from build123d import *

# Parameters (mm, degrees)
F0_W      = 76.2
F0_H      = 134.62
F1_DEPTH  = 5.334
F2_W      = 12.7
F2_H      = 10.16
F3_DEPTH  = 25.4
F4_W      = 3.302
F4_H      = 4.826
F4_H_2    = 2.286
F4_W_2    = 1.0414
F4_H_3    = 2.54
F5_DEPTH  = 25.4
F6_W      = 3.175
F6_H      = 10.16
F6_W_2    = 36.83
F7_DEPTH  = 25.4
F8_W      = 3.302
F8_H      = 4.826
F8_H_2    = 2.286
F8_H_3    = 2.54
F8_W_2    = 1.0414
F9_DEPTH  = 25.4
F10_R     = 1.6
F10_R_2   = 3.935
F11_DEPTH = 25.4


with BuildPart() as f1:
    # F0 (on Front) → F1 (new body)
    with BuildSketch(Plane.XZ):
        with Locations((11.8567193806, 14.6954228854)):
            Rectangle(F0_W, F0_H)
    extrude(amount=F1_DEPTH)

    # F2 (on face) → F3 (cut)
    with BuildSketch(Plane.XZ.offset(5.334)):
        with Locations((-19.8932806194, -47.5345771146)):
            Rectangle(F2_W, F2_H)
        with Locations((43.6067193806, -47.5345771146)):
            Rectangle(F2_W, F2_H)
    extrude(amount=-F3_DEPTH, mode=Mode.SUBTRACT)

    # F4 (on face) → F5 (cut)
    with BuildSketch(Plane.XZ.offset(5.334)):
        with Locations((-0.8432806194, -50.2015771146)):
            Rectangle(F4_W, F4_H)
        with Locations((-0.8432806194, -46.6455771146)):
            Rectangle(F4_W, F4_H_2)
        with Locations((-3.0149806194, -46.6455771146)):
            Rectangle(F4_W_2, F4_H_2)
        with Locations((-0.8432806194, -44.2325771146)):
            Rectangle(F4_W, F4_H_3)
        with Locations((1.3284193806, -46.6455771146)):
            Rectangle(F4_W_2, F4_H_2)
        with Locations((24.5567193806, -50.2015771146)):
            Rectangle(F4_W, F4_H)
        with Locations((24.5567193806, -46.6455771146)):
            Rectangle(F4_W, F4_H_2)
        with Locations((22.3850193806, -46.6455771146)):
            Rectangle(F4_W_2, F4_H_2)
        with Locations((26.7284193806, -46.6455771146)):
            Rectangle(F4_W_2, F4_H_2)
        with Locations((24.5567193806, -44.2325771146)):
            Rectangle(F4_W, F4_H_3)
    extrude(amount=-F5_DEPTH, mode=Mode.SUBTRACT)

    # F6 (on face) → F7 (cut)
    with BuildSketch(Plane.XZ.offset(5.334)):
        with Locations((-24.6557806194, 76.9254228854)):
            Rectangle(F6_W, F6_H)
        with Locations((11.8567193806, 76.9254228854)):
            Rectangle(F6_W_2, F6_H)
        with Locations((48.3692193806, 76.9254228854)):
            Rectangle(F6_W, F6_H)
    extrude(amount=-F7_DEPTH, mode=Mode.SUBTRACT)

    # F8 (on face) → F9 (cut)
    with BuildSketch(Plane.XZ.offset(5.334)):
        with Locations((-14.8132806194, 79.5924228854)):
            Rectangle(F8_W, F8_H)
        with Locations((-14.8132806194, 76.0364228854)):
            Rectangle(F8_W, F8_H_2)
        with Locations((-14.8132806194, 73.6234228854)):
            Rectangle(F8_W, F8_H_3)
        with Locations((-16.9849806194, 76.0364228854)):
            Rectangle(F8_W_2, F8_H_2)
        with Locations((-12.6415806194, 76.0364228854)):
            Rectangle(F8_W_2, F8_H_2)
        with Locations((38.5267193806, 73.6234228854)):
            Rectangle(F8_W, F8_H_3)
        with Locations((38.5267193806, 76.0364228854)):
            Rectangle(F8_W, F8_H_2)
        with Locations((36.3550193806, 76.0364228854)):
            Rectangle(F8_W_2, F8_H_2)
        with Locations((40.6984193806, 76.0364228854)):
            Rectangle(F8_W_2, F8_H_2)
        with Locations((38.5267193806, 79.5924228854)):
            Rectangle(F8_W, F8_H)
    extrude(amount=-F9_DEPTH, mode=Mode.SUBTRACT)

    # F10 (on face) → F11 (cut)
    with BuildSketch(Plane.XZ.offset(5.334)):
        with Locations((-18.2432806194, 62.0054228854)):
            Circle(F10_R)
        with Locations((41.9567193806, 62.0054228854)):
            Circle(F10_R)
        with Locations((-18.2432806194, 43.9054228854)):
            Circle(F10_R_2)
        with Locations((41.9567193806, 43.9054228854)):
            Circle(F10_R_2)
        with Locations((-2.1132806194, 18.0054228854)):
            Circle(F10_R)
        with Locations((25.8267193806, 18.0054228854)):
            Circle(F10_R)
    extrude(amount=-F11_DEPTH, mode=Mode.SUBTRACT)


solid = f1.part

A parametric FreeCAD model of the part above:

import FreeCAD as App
import Part
import Sketcher
from FreeCAD import Vector
Q = App.Units.Quantity


def add_polygon(sketch, points):
    """Adds a closed chain of lines whose ends are joined by coincident constraints."""
    first, n = sketch.GeometryCount, len(points)
    for a, b in zip(points, points[1:] + points[:1]):
        sketch.addGeometry(Part.LineSegment(App.Vector(*a, 0), App.Vector(*b, 0)), False)
    for i in range(n):
        sketch.addConstraint(Sketcher.Constraint("Coincident", first + i, 2, first + (i + 1) % n, 1))

doc = App.newDocument("Part")
params = doc.addObject("Spreadsheet::Sheet", "Params")
for row, (alias, value) in enumerate([
    ("sketch1_width", "3 in"),
    ("sketch1_height", "5.3 in"),
    ("pad1_length", "0.21 in"),
    ("sketch2_width", "0.5 in"),
    ("sketch2_height", "0.4 in"),
    ("pocket1_length", "1 in"),
    ("sketch3_height", "0.1 in"),
    ("sketch3_width", "0.13 in"),
    ("sketch3_height2", "0.19 in"),
    ("sketch3_height3", "0.09 in"),
    ("sketch3_width2", "0.041 in"),
    ("pocket2_length", "1 in"),
    ("sketch4_height", "0.4 in"),
    ("sketch4_width", "1.45 in"),
    ("sketch4_width2", "0.125 in"),
    ("pocket3_length", "1 in"),
    ("sketch5_height", "0.1 in"),
    ("sketch5_width", "0.13 in"),
    ("sketch5_height2", "0.19 in"),
    ("sketch5_height3", "0.09 in"),
    ("sketch5_width2", "0.041 in"),
    ("pocket4_length", "1 in"),
    ("pocket5_length", "1 in"),
], start=1):
    params.set(f"A{row}", alias)
    params.set(f"B{row}", "=" + value)
    params.setAlias(f"B{row}", alias)

body = doc.addObject("PartDesign::Body", "Body")

# Sketch on XZ plane
sketch1 = body.newObject("Sketcher::SketchObject", "Sketch")
sketch1.AttachmentSupport = (doc.getObject("XZ_Plane"), [""])
sketch1.MapMode = "FlatFace"
add_polygon(sketch1, [(-26, 82), (-26, -53), (50, -53), (50, 82)])  # lines 0-3
sketch1.addConstraint([
    Sketcher.Constraint("Vertical", 0),
    Sketcher.Constraint("Horizontal", 1),
    Sketcher.Constraint("Vertical", 2),
    Sketcher.Constraint("Horizontal", 3),
    Sketcher.Constraint("DistanceX", 1, 1, 1, 2, Q("3 in")),
    Sketcher.Constraint("DistanceY", 0, 2, 0, 1, Q("5.3 in")),
    Sketcher.Constraint("DistanceX", 0, 2, -1, 1, Q("1.0332 in")),
    Sketcher.Constraint("DistanceY", 0, 2, -1, 1, 52.614577),
])
sketch1.setExpression("Constraints[8]", "Params.sketch1_width")
sketch1.setExpression("Constraints[9]", "Params.sketch1_height")
pad1 = body.newObject("PartDesign::Pad", "Pad")
pad1.Profile = sketch1
pad1.setExpression("Length", "Params.pad1_length")

# Sketch on XZ plane
sketch2 = body.newObject("Sketcher::SketchObject", "Sketch001")
sketch2.AttachmentSupport = (doc.getObject("XZ_Plane"), [""])
sketch2.MapMode = "FlatFace"
sketch2.AttachmentOffset = App.Placement(Vector(0, 0, 0.21 * 25.4), App.Rotation())
add_polygon(sketch2, [(-26, -42), (-26, -53), (-14, -53), (-14, -42)])  # lines 0-3
add_polygon(sketch2, [(37, -42), (37, -53), (50, -53), (50, -42)])  # lines 4-7
sketch2.addConstraint([
    Sketcher.Constraint("Vertical", 0),
    Sketcher.Constraint("Horizontal", 1),
    Sketcher.Constraint("Vertical", 2),
    Sketcher.Constraint("Horizontal", 3),
    Sketcher.Constraint("Vertical", 4),
    Sketcher.Constraint("Horizontal", 5),
    Sketcher.Constraint("Vertical", 6),
    Sketcher.Constraint("Horizontal", 7),
    Sketcher.Constraint("Horizontal", 1, 2, 4, 2),
    Sketcher.Constraint("Horizontal", 3, 2, 6, 2),
    Sketcher.Constraint("Equal", 3, 5),
    Sketcher.Constraint("DistanceX", 1, 1, 1, 2, Q("0.5 in")),
    Sketcher.Constraint("DistanceY", 0, 2, 0, 1, Q("0.4 in")),
    Sketcher.Constraint("DistanceX", 1, 2, 4, 2, Q("2 in")),
    Sketcher.Constraint("DistanceX", 0, 2, -1, 1, Q("1.0332 in")),
    Sketcher.Constraint("DistanceY", 0, 2, -1, 1, 52.614577),
])
sketch2.setExpression("Constraints[19]", "Params.sketch2_width")
sketch2.setExpression("Constraints[20]", "Params.sketch2_height")
pocket1 = body.newObject("PartDesign::Pocket", "Pocket")
pocket1.Profile = sketch2
pocket1.setExpression("Length", "Params.pocket1_length")

# Sketch on XZ plane
sketch3 = body.newObject("Sketcher::SketchObject", "Sketch002")
sketch3.AttachmentSupport = (doc.getObject("XZ_Plane"), [""])
sketch3.MapMode = "FlatFace"
sketch3.AttachmentOffset = App.Placement(Vector(0, 0, 0.21 * 25.4), App.Rotation())
add_polygon(sketch3, [(-2.5, -52.6), (0.8, -52.6), (0.8, -47.8), (1.8, -47.8), (1.8, -45.5), (0.8, -45.5), (0.8, -43), (-2.5, -43), (-2.5, -45.5), (-3.5, -45.5), (-3.5, -47.8), (-2.5, -47.8)])  # lines 0-11
add_polygon(sketch3, [(22.9, -52.6), (26.2, -52.6), (26.2, -47.8), (27.2, -47.8), (27.2, -45.5), (26.2, -45.5), (26.2, -43), (22.9, -43), (22.9, -45.5), (21.9, -45.5), (21.9, -47.8), (22.9, -47.8)])  # lines 12-23
sketch3.addConstraint([
    Sketcher.Constraint("Horizontal", 0),
    Sketcher.Constraint("Vertical", 1),
    Sketcher.Constraint("Horizontal", 2),
    Sketcher.Constraint("Vertical", 3),
    Sketcher.Constraint("Horizontal", 4),
    Sketcher.Constraint("Vertical", 5),
    Sketcher.Constraint("Horizontal", 6),
    Sketcher.Constraint("Vertical", 7),
    Sketcher.Constraint("Horizontal", 8),
    Sketcher.Constraint("Vertical", 9),
    Sketcher.Constraint("Horizontal", 10),
    Sketcher.Constraint("Vertical", 11),
    Sketcher.Constraint("Horizontal", 12),
    Sketcher.Constraint("Vertical", 13),
    Sketcher.Constraint("Horizontal", 14),
    Sketcher.Constraint("Vertical", 15),
    Sketcher.Constraint("Horizontal", 16),
    Sketcher.Constraint("Vertical", 17),
    Sketcher.Constraint("Horizontal", 18),
    Sketcher.Constraint("Vertical", 19),
    Sketcher.Constraint("Horizontal", 20),
    Sketcher.Constraint("Vertical", 21),
    Sketcher.Constraint("Horizontal", 22),
    Sketcher.Constraint("Vertical", 23),
    Sketcher.Constraint("Horizontal", 4, 2, 7, 2),
    Sketcher.Constraint("Horizontal", 2, 2, 9, 2),
    Sketcher.Constraint("Horizontal", 11, 2, 12, 2),
    Sketcher.Constraint("Horizontal", 10, 2, 13, 2),
    Sketcher.Constraint("Horizontal", 8, 2, 15, 2),
    Sketcher.Constraint("Horizontal", 6, 2, 17, 2),
    Sketcher.Constraint("Horizontal", 16, 2, 19, 2),
    Sketcher.Constraint("Horizontal", 14, 2, 21, 2),
    Sketcher.Constraint("Vertical", 1, 2, 4, 2),
    Sketcher.Constraint("Vertical", 7, 2, 10, 2),
    Sketcher.Constraint("Vertical", 13, 2, 16, 2),
    Sketcher.Constraint("Vertical", 19, 2, 22, 2),
    Sketcher.Constraint("Equal", 4, 8),
    Sketcher.Constraint("Equal", 6, 12),
    Sketcher.Constraint("Equal", 10, 14),
    Sketcher.Constraint("Equal", 16, 20),
    Sketcher.Constraint("DistanceY", 5, 1, 5, 2, Q("0.1 in")),
    Sketcher.Constraint("DistanceX", 0, 2, 12, 2, Q("1 in")),
    Sketcher.Constraint("DistanceX", 0, 1, 0, 2, Q("0.13 in")),
    Sketcher.Constraint("DistanceY", 1, 1, 1, 2, Q("0.19 in")),
    Sketcher.Constraint("DistanceY", 3, 1, 3, 2, Q("0.09 in")),
    Sketcher.Constraint("DistanceX", 2, 1, 2, 2, Q("0.041 in")),
    Sketcher.Constraint("DistanceX", -1, 1, 0, 2, Q("0.0318 in")),
    Sketcher.Constraint("DistanceY", 0, 2, -1, 1, 52.614577),
])
sketch3.setExpression("Constraints[64]", "Params.sketch3_height")
sketch3.setExpression("Constraints[66]", "Params.sketch3_width")
sketch3.setExpression("Constraints[67]", "Params.sketch3_height2")
sketch3.setExpression("Constraints[68]", "Params.sketch3_height3")
sketch3.setExpression("Constraints[69]", "Params.sketch3_width2")
pocket2 = body.newObject("PartDesign::Pocket", "Pocket001")
pocket2.Profile = sketch3
pocket2.setExpression("Length", "Params.pocket2_length")

# Sketch on XZ plane
sketch4 = body.newObject("Sketcher::SketchObject", "Sketch003")
sketch4.AttachmentSupport = (doc.getObject("XZ_Plane"), [""])
sketch4.MapMode = "FlatFace"
sketch4.AttachmentOffset = App.Placement(Vector(0, 0, 0.21 * 25.4), App.Rotation())
add_polygon(sketch4, [(-26.2, 82), (-26.2, 71.8), (-23.1, 71.8), (-23.1, 82)])  # lines 0-3
add_polygon(sketch4, [(-6.6, 82), (-6.6, 71.8), (30.3, 71.8), (30.3, 82)])  # lines 4-7
add_polygon(sketch4, [(46.8, 82), (46.8, 71.8), (50, 71.8), (50, 82)])  # lines 8-11
sketch4.addConstraint([
    Sketcher.Constraint("Vertical", 0),
    Sketcher.Constraint("Horizontal", 1),
    Sketcher.Constraint("Vertical", 2),
    Sketcher.Constraint("Horizontal", 3),
    Sketcher.Constraint("Vertical", 4),
    Sketcher.Constraint("Horizontal", 5),
    Sketcher.Constraint("Vertical", 6),
    Sketcher.Constraint("Horizontal", 7),
    Sketcher.Constraint("Vertical", 8),
    Sketcher.Constraint("Horizontal", 9),
    Sketcher.Constraint("Vertical", 10),
    Sketcher.Constraint("Horizontal", 11),
    Sketcher.Constraint("Horizontal", 1, 2, 4, 2),
    Sketcher.Constraint("Horizontal", 3, 2, 6, 2),
    Sketcher.Constraint("Horizontal", 5, 2, 8, 2),
    Sketcher.Constraint("Horizontal", 7, 2, 10, 2),
    Sketcher.Constraint("Equal", 3, 9),
    Sketcher.Constraint("DistanceY", 0, 2, 0, 1, Q("0.4 in")),
    Sketcher.Constraint("DistanceX", 5, 1, 5, 2, Q("1.45 in")),
    Sketcher.Constraint("DistanceX", 1, 2, 5, 2, Q("2.1 in")),
    Sketcher.Constraint("DistanceX", 4, 2, 8, 2, Q("2.1 in")),
    Sketcher.Constraint("DistanceX", 1, 1, 1, 2, Q("0.125 in")),
    Sketcher.Constraint("DistanceX", 0, 2, -1, 1, Q("1.0332 in")),
    Sketcher.Constraint("DistanceY", -1, 1, 0, 2, 71.845423),
])
sketch4.setExpression("Constraints[29]", "Params.sketch4_height")
sketch4.setExpression("Constraints[30]", "Params.sketch4_width")
sketch4.setExpression("Constraints[33]", "Params.sketch4_width2")
pocket3 = body.newObject("PartDesign::Pocket", "Pocket002")
pocket3.Profile = sketch4
pocket3.setExpression("Length", "Params.pocket3_length")

# Sketch on XZ plane
sketch5 = body.newObject("Sketcher::SketchObject", "Sketch004")
sketch5.AttachmentSupport = (doc.getObject("XZ_Plane"), [""])
sketch5.MapMode = "FlatFace"
sketch5.AttachmentOffset = App.Placement(Vector(0, 0, 0.21 * 25.4), App.Rotation())
add_polygon(sketch5, [(-16.5, 82), (-16.5, 77.2), (-17.5, 77.2), (-17.5, 74.9), (-16.5, 74.9), (-16.5, 72.4), (-13.2, 72.4), (-13.2, 74.9), (-12.1, 74.9), (-12.1, 77.2), (-13.2, 77.2), (-13.2, 82)])  # lines 0-11
add_polygon(sketch5, [(36.9, 72.4), (40.2, 72.4), (40.2, 74.9), (41.2, 74.9), (41.2, 77.2), (40.2, 77.2), (40.2, 82), (36.9, 82), (36.9, 77.2), (35.8, 77.2), (35.8, 74.9), (36.9, 74.9)])  # lines 12-23
sketch5.addConstraint([
    Sketcher.Constraint("Vertical", 0),
    Sketcher.Constraint("Horizontal", 1),
    Sketcher.Constraint("Vertical", 2),
    Sketcher.Constraint("Horizontal", 3),
    Sketcher.Constraint("Vertical", 4),
    Sketcher.Constraint("Horizontal", 5),
    Sketcher.Constraint("Vertical", 6),
    Sketcher.Constraint("Horizontal", 7),
    Sketcher.Constraint("Vertical", 8),
    Sketcher.Constraint("Horizontal", 9),
    Sketcher.Constraint("Vertical", 10),
    Sketcher.Constraint("Horizontal", 11),
    Sketcher.Constraint("Horizontal", 12),
    Sketcher.Constraint("Vertical", 13),
    Sketcher.Constraint("Horizontal", 14),
    Sketcher.Constraint("Vertical", 15),
    Sketcher.Constraint("Horizontal", 16),
    Sketcher.Constraint("Vertical", 17),
    Sketcher.Constraint("Horizontal", 18),
    Sketcher.Constraint("Vertical", 19),
    Sketcher.Constraint("Horizontal", 20),
    Sketcher.Constraint("Vertical", 21),
    Sketcher.Constraint("Horizontal", 22),
    Sketcher.Constraint("Vertical", 23),
    Sketcher.Constraint("Horizontal", 3, 2, 6, 2),
    Sketcher.Constraint("Horizontal", 1, 2, 8, 2),
    Sketcher.Constraint("Horizontal", 5, 2, 12, 2),
    Sketcher.Constraint("Horizontal", 7, 2, 13, 2),
    Sketcher.Constraint("Horizontal", 9, 2, 15, 2),
    Sketcher.Constraint("Horizontal", 11, 2, 17, 2),
    Sketcher.Constraint("Horizontal", 16, 2, 19, 2),
    Sketcher.Constraint("Horizontal", 14, 2, 21, 2),
    Sketcher.Constraint("Vertical", 0, 2, 3, 2),
    Sketcher.Constraint("Vertical", 6, 2, 9, 2),
    Sketcher.Constraint("Vertical", 13, 2, 16, 2),
    Sketcher.Constraint("Vertical", 19, 2, 22, 2),
    Sketcher.Constraint("Equal", 3, 7),
    Sketcher.Constraint("Equal", 11, 12),
    Sketcher.Constraint("Equal", 9, 14),
    Sketcher.Constraint("Equal", 16, 20),
    Sketcher.Constraint("DistanceY", 4, 2, 4, 1, Q("0.1 in")),
    Sketcher.Constraint("DistanceX", 5, 1, 5, 2, Q("0.13 in")),
    Sketcher.Constraint("DistanceY", 0, 2, 0, 1, Q("0.19 in")),
    Sketcher.Constraint("DistanceY", 2, 2, 2, 1, Q("0.09 in")),
    Sketcher.Constraint("DistanceX", 5, 2, 12, 2, Q("2.1 in")),
    Sketcher.Constraint("DistanceX", 1, 2, 1, 1, Q("0.041 in")),
    Sketcher.Constraint("DistanceX", 0, 2, -1, 1, Q("0.6482 in")),
    Sketcher.Constraint("DistanceY", -1, 1, 0, 2, 77.179423),
])
sketch5.setExpression("Constraints[64]", "Params.sketch5_height")
sketch5.setExpression("Constraints[65]", "Params.sketch5_width")
sketch5.setExpression("Constraints[66]", "Params.sketch5_height2")
sketch5.setExpression("Constraints[67]", "Params.sketch5_height3")
sketch5.setExpression("Constraints[69]", "Params.sketch5_width2")
pocket4 = body.newObject("PartDesign::Pocket", "Pocket003")
pocket4.Profile = sketch5
pocket4.setExpression("Length", "Params.pocket4_length")

# Sketch on XZ plane
sketch6 = body.newObject("Sketcher::SketchObject", "Sketch005")
sketch6.AttachmentSupport = (doc.getObject("XZ_Plane"), [""])
sketch6.MapMode = "FlatFace"
sketch6.AttachmentOffset = App.Placement(Vector(0, 0, 0.21 * 25.4), App.Rotation())
sketch6.addGeometry([
    Part.Circle(Vector(-18.2, 62, 0), Vector(0, 0, 1), 1.6),  # 0
    Part.Circle(Vector(42, 62, 0), Vector(0, 0, 1), 1.6),  # 1
    Part.Circle(Vector(-18.2, 43.9, 0), Vector(0, 0, 1), 3.9),  # 2
    Part.Circle(Vector(42, 43.9, 0), Vector(0, 0, 1), 3.9),  # 3
    Part.Circle(Vector(-2.1, 18, 0), Vector(0, 0, 1), 1.6),  # 4
    Part.Circle(Vector(25.8, 18, 0), Vector(0, 0, 1), 1.6),  # 5
], False)
sketch6.addConstraint([
    Sketcher.Constraint("Equal", 0, 1),
    Sketcher.Constraint("Equal", 2, 3),
    Sketcher.Constraint("Equal", 1, 4),
    Sketcher.Constraint("Equal", 4, 5),
    Sketcher.Constraint("Horizontal", 0, 3, 1, 3),
    Sketcher.Constraint("Horizontal", 2, 3, 3, 3),
    Sketcher.Constraint("Horizontal", 4, 3, 5, 3),
    Sketcher.Constraint("Vertical", 0, 3, 2, 3),
    Sketcher.Constraint("Vertical", 1, 3, 3, 3),
    Sketcher.Constraint("DistanceX", 4, 3, 5, 3, Q("1.1 in")),
    Sketcher.Constraint("Diameter", 0, 3.2),
    Sketcher.Constraint("Diameter", 2, 7.87),
    Sketcher.Constraint("DistanceX", 4, 3, -1, 1, Q("0.0832 in")),
    Sketcher.Constraint("DistanceX", 0, 3, 1, 3, 60.2),
    Sketcher.Constraint("DistanceY", 2, 3, 0, 3, 18.1),
    Sketcher.Constraint("DistanceX", 2, 3, 4, 3, 16.13),
    Sketcher.Constraint("DistanceY", 4, 3, 2, 3, 25.9),
    Sketcher.Constraint("DistanceY", -1, 1, 0, 3, 62.005423),
])
pocket5 = body.newObject("PartDesign::Pocket", "Pocket004")
pocket5.Profile = sketch6
pocket5.setExpression("Length", "Params.pocket5_length")

doc.recompute()
